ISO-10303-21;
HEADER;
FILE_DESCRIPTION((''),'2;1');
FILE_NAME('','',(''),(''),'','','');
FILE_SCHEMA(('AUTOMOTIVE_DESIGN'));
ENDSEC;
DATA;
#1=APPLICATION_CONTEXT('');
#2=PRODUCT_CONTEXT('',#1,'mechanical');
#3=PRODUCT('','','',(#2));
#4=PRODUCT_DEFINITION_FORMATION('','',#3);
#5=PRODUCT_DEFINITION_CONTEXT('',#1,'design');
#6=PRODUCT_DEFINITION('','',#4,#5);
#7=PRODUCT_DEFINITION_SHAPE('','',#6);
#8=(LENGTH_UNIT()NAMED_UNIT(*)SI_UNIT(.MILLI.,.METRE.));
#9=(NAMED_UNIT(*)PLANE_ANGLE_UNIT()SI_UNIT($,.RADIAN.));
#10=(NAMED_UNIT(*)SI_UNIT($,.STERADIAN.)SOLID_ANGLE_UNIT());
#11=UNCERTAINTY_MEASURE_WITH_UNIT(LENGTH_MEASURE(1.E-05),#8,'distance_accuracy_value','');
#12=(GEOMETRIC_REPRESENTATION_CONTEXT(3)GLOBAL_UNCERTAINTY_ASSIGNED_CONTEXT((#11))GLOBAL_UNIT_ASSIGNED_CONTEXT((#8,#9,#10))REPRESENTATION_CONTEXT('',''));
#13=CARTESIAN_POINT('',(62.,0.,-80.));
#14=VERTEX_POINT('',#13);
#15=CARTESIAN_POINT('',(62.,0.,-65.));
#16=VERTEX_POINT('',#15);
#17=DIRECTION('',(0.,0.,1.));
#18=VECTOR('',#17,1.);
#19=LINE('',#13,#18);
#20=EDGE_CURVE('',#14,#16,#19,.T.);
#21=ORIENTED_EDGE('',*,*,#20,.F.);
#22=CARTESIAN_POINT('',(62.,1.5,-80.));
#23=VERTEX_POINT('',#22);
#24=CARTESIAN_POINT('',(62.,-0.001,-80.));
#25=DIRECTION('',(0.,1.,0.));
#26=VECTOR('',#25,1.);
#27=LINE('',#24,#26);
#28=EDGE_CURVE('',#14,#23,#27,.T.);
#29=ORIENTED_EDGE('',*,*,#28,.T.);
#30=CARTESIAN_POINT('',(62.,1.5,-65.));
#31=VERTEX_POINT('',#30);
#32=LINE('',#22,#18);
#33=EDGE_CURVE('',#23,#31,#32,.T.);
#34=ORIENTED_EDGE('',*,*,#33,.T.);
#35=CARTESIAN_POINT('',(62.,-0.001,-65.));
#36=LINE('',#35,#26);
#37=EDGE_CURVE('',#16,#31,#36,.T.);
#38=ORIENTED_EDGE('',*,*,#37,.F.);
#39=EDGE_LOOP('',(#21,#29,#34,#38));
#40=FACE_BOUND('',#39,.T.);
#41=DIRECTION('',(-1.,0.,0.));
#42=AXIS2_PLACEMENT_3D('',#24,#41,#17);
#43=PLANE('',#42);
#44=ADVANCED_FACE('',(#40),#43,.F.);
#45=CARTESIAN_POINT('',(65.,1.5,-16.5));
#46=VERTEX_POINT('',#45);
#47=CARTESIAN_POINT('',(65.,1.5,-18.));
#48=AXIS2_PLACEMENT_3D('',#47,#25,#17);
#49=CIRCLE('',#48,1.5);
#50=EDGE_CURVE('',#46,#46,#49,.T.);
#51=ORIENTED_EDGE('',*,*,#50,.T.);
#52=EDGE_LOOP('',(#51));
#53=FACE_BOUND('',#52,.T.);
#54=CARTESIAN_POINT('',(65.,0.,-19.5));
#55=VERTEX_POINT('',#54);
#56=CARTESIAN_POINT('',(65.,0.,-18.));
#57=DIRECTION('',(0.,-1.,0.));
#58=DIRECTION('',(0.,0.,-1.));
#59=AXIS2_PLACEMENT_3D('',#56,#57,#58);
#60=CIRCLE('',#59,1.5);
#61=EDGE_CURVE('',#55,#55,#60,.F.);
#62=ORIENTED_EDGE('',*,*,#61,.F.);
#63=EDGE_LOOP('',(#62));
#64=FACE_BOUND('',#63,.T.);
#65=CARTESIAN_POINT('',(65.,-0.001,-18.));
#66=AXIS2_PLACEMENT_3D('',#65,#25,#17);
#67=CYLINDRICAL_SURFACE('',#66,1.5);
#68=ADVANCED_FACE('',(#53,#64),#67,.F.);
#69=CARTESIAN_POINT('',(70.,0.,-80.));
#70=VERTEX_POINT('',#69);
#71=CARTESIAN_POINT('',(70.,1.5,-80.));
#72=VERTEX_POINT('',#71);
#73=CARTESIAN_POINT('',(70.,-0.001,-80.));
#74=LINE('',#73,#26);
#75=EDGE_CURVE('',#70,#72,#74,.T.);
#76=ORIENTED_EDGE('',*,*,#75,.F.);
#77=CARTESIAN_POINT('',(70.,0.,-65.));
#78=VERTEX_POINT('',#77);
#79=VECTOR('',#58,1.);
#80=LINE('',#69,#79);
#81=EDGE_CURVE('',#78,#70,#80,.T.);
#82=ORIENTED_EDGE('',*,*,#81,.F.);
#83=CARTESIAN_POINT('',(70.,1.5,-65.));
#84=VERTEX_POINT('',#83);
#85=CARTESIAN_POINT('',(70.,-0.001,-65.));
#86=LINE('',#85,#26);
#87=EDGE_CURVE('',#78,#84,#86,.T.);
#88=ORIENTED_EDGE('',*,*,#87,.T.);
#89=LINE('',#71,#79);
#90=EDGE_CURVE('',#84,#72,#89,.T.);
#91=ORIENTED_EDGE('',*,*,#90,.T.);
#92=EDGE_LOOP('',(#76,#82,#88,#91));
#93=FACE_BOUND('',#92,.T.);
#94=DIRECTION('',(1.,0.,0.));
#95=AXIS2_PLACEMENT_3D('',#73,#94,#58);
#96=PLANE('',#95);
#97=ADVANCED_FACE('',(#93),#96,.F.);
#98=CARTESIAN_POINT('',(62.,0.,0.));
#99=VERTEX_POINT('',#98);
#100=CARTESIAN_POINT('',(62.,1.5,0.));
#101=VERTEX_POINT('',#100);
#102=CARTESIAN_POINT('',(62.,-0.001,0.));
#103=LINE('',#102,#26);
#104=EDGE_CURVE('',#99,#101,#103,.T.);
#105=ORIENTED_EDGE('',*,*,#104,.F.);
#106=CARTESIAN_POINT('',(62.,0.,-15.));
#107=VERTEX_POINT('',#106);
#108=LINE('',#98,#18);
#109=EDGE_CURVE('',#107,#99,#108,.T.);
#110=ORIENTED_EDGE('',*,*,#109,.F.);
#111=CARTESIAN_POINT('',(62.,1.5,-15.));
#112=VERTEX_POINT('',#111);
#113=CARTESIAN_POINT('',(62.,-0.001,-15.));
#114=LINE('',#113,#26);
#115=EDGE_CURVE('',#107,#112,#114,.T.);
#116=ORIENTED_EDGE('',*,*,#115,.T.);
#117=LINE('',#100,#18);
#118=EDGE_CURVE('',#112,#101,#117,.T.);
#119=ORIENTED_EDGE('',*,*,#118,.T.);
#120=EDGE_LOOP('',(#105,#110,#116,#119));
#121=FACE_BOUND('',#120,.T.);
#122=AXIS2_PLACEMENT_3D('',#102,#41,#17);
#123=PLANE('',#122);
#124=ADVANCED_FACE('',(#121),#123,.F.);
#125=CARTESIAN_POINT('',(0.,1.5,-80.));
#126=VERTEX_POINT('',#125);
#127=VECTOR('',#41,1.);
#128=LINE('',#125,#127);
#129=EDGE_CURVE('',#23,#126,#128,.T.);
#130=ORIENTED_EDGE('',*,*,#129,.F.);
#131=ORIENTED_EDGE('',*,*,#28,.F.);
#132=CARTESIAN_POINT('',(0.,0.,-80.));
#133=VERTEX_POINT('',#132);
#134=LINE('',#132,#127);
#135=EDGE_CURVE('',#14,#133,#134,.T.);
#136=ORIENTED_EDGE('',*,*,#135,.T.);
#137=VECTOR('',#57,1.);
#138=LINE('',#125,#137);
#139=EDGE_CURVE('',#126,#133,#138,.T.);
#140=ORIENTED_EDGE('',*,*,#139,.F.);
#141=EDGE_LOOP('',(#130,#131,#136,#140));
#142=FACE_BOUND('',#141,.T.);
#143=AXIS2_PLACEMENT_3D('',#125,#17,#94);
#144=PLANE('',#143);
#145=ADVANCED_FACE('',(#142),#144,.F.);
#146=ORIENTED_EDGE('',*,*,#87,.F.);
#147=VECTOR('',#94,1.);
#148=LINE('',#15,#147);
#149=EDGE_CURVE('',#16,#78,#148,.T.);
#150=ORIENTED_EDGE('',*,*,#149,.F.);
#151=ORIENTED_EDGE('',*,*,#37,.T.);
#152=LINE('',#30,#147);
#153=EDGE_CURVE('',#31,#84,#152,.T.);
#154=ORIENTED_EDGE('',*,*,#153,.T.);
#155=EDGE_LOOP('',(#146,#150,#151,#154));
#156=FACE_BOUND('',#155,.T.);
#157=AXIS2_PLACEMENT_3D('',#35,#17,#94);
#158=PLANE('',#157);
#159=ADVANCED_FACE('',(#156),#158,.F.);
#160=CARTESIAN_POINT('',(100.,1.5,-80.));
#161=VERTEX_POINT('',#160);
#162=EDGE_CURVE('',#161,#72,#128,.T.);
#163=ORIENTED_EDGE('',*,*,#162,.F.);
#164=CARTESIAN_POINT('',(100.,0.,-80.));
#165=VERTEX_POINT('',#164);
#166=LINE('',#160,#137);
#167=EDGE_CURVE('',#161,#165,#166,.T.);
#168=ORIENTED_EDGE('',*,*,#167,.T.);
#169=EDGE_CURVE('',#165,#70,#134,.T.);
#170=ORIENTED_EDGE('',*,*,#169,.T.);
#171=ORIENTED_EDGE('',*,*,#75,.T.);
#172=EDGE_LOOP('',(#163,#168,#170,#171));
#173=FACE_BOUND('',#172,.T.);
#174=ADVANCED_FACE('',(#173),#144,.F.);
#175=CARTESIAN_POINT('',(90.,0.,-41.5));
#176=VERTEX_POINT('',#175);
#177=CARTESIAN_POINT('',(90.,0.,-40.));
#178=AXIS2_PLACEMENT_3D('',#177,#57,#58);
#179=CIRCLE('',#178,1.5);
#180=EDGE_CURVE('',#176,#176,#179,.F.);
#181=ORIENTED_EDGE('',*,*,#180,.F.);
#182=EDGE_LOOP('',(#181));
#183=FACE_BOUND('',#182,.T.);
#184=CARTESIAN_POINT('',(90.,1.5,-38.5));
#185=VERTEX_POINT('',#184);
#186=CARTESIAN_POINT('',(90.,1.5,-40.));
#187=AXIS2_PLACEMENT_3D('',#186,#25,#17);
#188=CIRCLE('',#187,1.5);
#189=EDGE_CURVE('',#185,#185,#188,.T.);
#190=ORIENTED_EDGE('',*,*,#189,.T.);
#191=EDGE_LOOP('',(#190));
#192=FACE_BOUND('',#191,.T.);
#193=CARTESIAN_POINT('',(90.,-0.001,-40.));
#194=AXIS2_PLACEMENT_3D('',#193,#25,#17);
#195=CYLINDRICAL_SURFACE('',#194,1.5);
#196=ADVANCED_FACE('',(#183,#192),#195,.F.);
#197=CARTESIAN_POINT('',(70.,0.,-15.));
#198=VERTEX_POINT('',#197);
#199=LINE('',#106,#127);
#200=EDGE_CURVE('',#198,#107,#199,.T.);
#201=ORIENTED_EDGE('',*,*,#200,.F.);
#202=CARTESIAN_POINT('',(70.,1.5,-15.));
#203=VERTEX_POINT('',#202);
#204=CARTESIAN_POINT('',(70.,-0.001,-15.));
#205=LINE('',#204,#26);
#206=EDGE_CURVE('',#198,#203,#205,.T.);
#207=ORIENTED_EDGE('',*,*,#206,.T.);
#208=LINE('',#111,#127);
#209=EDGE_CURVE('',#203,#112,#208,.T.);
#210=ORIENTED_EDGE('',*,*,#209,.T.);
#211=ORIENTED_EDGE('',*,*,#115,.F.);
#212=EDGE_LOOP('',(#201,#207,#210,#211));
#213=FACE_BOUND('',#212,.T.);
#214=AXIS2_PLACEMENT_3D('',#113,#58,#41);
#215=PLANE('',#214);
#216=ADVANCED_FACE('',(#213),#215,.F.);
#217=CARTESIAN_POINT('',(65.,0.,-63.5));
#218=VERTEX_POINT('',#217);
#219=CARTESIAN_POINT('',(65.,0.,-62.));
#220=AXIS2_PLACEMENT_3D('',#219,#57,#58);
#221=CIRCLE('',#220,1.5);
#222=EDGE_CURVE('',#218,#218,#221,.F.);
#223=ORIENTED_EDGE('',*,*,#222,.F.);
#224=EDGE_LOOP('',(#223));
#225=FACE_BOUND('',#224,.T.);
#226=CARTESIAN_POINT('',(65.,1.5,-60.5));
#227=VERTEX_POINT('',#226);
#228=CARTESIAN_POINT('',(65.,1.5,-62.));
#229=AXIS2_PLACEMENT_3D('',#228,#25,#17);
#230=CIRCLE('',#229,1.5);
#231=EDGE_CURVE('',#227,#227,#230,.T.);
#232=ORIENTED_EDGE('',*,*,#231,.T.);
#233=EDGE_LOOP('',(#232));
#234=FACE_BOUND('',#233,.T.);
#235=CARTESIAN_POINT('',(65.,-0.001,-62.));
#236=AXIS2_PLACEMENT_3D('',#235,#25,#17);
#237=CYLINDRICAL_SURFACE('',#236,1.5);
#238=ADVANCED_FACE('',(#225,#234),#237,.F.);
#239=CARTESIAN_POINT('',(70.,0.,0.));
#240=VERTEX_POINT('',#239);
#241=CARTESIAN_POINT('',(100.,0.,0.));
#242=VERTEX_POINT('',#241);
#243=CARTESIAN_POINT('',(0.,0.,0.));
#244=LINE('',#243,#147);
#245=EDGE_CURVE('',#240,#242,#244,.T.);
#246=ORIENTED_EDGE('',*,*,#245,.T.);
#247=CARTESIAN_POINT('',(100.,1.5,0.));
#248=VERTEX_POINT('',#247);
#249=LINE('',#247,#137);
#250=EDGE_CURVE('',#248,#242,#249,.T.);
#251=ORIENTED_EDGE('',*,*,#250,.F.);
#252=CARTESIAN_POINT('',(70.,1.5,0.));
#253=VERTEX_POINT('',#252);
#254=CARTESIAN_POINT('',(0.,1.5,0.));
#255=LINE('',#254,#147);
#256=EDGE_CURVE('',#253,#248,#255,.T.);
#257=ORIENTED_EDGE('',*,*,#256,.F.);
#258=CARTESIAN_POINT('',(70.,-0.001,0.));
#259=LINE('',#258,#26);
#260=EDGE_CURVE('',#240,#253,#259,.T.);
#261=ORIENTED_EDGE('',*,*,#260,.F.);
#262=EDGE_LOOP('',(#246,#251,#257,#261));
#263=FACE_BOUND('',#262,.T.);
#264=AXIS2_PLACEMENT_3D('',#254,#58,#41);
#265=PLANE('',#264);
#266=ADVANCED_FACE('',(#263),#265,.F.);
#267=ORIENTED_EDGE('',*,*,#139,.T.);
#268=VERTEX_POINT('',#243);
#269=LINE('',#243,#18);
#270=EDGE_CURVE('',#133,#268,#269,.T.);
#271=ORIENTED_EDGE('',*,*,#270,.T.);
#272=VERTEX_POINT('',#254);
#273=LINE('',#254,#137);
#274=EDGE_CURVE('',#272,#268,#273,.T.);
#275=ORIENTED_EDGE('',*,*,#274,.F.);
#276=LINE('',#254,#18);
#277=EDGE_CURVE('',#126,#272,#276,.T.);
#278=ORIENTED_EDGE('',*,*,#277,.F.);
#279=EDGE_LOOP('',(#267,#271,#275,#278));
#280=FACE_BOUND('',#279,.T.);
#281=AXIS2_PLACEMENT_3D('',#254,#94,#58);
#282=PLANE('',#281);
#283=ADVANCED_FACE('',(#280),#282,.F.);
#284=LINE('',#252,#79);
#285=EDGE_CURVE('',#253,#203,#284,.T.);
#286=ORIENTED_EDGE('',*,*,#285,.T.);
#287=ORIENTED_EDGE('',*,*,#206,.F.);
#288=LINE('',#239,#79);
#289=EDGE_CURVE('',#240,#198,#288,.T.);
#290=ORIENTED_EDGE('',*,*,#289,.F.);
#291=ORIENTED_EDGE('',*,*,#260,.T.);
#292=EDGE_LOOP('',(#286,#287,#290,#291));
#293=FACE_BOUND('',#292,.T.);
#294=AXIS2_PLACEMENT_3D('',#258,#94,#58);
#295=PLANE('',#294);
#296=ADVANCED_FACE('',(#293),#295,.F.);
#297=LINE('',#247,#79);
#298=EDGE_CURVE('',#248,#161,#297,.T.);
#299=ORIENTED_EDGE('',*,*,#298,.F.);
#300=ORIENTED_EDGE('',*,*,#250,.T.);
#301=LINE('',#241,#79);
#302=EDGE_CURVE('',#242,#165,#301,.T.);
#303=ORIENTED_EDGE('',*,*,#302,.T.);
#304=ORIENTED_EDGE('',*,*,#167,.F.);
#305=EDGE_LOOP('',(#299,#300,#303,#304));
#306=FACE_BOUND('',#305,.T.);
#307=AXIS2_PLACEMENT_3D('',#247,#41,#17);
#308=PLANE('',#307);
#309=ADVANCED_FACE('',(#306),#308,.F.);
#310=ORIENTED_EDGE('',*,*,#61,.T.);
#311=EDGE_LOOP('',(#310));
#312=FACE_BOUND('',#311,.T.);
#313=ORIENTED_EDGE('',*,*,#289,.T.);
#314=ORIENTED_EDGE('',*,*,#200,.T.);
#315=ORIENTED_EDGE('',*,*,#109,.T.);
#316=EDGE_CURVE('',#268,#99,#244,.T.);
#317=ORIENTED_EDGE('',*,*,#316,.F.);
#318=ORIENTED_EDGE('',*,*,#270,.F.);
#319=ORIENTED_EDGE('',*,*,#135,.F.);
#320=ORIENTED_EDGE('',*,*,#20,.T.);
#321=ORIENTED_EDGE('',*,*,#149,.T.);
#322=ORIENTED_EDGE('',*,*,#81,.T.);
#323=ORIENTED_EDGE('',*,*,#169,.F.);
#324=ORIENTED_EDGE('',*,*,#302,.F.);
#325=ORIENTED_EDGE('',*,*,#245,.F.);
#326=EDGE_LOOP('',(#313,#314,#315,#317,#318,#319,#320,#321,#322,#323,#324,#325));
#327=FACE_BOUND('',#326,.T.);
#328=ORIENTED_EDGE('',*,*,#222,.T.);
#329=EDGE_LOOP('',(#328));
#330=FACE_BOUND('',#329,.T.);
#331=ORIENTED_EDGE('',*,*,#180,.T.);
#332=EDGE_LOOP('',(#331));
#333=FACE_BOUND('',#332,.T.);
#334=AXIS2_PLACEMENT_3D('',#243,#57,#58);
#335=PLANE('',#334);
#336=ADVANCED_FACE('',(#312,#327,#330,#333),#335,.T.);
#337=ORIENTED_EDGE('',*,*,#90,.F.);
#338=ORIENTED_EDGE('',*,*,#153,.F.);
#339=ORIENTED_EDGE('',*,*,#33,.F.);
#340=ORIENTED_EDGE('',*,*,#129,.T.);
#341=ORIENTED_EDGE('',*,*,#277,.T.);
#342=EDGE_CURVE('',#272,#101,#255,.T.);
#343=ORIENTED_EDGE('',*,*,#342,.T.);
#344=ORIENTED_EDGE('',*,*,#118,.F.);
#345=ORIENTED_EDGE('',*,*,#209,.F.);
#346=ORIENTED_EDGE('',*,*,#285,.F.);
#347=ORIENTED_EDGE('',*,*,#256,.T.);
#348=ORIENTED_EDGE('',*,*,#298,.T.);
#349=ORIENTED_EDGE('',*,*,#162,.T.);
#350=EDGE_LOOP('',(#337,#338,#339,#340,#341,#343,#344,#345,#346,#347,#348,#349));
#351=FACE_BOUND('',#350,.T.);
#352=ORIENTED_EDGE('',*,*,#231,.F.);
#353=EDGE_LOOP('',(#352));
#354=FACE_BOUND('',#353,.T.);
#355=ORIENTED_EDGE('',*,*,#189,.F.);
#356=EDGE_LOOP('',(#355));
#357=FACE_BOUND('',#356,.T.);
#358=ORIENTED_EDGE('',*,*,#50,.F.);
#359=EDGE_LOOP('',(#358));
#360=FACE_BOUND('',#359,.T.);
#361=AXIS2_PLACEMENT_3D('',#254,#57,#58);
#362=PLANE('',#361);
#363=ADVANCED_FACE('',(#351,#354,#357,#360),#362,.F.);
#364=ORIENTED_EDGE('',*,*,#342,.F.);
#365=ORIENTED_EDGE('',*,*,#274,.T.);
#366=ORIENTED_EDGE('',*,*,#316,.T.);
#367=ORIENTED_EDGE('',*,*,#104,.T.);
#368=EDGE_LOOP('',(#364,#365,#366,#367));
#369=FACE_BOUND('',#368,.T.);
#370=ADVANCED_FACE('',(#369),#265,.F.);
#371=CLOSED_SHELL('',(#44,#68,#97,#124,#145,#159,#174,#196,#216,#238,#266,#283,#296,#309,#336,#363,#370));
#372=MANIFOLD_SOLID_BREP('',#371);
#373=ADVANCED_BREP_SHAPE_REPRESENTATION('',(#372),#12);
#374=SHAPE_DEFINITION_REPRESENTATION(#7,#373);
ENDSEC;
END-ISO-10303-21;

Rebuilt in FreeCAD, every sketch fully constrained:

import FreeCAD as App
import Part
import Sketcher

V = App.Vector


def add_polygon(sketch, points):
    """Adds a closed chain of lines whose ends are joined by coincident constraints."""
    first, n = sketch.GeometryCount, len(points)
    for a, b in zip(points, points[1:] + points[:1]):
        sketch.addGeometry(Part.LineSegment(App.Vector(*a, 0), App.Vector(*b, 0)), False)
    for i in range(n):
        sketch.addConstraint(Sketcher.Constraint("Coincident", first + i, 2, first + (i + 1) % n, 1))

doc = App.newDocument("Part")
body = doc.addObject("PartDesign::Body", "Body")

sketch1 = doc.addObject("Sketcher::SketchObject", "Sketch")
body.addObject(sketch1)
sketch1.AttachmentSupport = (doc.XZ_Plane, [""])
sketch1.MapMode = "FlatFace"
add_polygon(sketch1, [(0, -80), (0, 0), (100, 0), (100, -80)])
sketch1.addConstraint([
    Sketcher.Constraint("Vertical", 0),
    Sketcher.Constraint("Horizontal", 1),
    Sketcher.Constraint("Vertical", 2),
    Sketcher.Constraint("Horizontal", 3),
    Sketcher.Constraint("Coincident", 0, 2, -1, 1),
    Sketcher.Constraint("DistanceX", 1, 1, 1, 2, 100.0),
    Sketcher.Constraint("DistanceY", 0, 1, 0, 2, 80.0),
])
pad1 = doc.addObject("PartDesign::Pad", "Pad")
body.addObject(pad1)
pad1.Profile = sketch1
pad1.Length = 1.5
pad1.Reversed = True

sketch2 = doc.addObject("Sketcher::SketchObject", "Sketch001")
body.addObject(sketch2)
sketch2.AttachmentSupport = (doc.XZ_Plane, [""])
sketch2.MapMode = "FlatFace"
sketch2.AttachmentOffset = App.Placement(V(0, 0, -1.5), App.Rotation())
add_polygon(sketch2, [(62, -80), (62, -65), (70, -65), (70, -80)])
sketch2.addConstraint([
    Sketcher.Constraint("Vertical", 0),
    Sketcher.Constraint("Horizontal", 1),
    Sketcher.Constraint("Vertical", 2),
    Sketcher.Constraint("Horizontal", 3),
    Sketcher.Constraint("DistanceX", 1, 1, 1, 2, 8.0),
    Sketcher.Constraint("DistanceY", 0, 1, 0, 2, 15.0),
    Sketcher.Constraint("DistanceX", -1, 1, 0, 2, 62.0),
    Sketcher.Constraint("DistanceY", 0, 2, -1, 1, 65.0),
])
pocket1 = doc.addObject("PartDesign::Pocket", "Pocket")
body.addObject(pocket1)
pocket1.Profile = sketch2
pocket1.Type = "UpToFirst"
pocket1.Reversed = True

sketch3 = doc.addObject("Sketcher::SketchObject", "Sketch002")
body.addObject(sketch3)
sketch3.AttachmentSupport = (doc.XZ_Plane, [""])
sketch3.MapMode = "FlatFace"
sketch3.AttachmentOffset = App.Placement(V(0, 0, -1.5), App.Rotation())
add_polygon(sketch3, [(62, -15), (62, 0), (70, 0), (70, -15)])
sketch3.addConstraint([
    Sketcher.Constraint("Vertical", 0),
    Sketcher.Constraint("Horizontal", 1),
    Sketcher.Constraint("Vertical", 2),
    Sketcher.Constraint("Horizontal", 3),
    Sketcher.Constraint("PointOnObject", 0, 2, -1),
    Sketcher.Constraint("DistanceX", 1, 1, 1, 2, 8.0),
    Sketcher.Constraint("DistanceY", 0, 1, 0, 2, 15.0),
    Sketcher.Constraint("DistanceX", -1, 1, 0, 2, 62.0),
])
pocket2 = doc.addObject("PartDesign::Pocket", "Pocket001")
body.addObject(pocket2)
pocket2.Profile = sketch3
pocket2.Type = "UpToFirst"
pocket2.Reversed = True

sketch4 = doc.addObject("Sketcher::SketchObject", "Sketch003")
body.addObject(sketch4)
sketch4.AttachmentSupport = (doc.XZ_Plane, [""])
sketch4.MapMode = "FlatFace"
sketch4.AttachmentOffset = App.Placement(V(0, 0, -1.5), App.Rotation())
sketch4.addGeometry(Part.Circle(V(65, -62, 0), V(0, 0, 1), 1.5), False)
sketch4.addConstraint([
    Sketcher.Constraint("Diameter", 0, 3.0),
    Sketcher.Constraint("DistanceX", -1, 1, 0, 3, 65.0),
    Sketcher.Constraint("DistanceY", 0, 3, -1, 1, 62.0),
])
pocket3 = doc.addObject("PartDesign::Pocket", "Pocket002")
body.addObject(pocket3)
pocket3.Profile = sketch4
pocket3.Type = "UpToFirst"
pocket3.Reversed = True

sketch5 = doc.addObject("Sketcher::SketchObject", "Sketch004")
body.addObject(sketch5)
sketch5.AttachmentSupport = (doc.XZ_Plane, [""])
sketch5.MapMode = "FlatFace"
sketch5.AttachmentOffset = App.Placement(V(0, 0, -1.5), App.Rotation())
sketch5.addGeometry(Part.Circle(V(90, -40, 0), V(0, 0, 1), 1.5), False)
sketch5.addConstraint([
    Sketcher.Constraint("Diameter", 0, 3.0),
    Sketcher.Constraint("DistanceX", -1, 1, 0, 3, 90.0),
    Sketcher.Constraint("DistanceY", 0, 3, -1, 1, 40.0),
])
pocket4 = doc.addObject("PartDesign::Pocket", "Pocket003")
body.addObject(pocket4)
pocket4.Profile = sketch5
pocket4.Type = "UpToFirst"
pocket4.Reversed = True

sketch6 = doc.addObject("Sketcher::SketchObject", "Sketch005")
body.addObject(sketch6)
sketch6.AttachmentSupport = (doc.XZ_Plane, [""])
sketch6.MapMode = "FlatFace"
sketch6.AttachmentOffset = App.Placement(V(0, 0, -1.5), App.Rotation())
sketch6.addGeometry(Part.Circle(V(65, -18, 0), V(0, 0, 1), 1.5), False)
sketch6.addConstraint([
    Sketcher.Constraint("Diameter", 0, 3.0),
    Sketcher.Constraint("DistanceX", -1, 1, 0, 3, 65.0),
    Sketcher.Constraint("DistanceY", 0, 3, -1, 1, 18.0),
])
pocket5 = doc.addObject("PartDesign::Pocket", "Pocket004")
body.addObject(pocket5)
pocket5.Profile = sketch6
pocket5.Type = "UpToFirst"
pocket5.Reversed = True

doc.recompute()
